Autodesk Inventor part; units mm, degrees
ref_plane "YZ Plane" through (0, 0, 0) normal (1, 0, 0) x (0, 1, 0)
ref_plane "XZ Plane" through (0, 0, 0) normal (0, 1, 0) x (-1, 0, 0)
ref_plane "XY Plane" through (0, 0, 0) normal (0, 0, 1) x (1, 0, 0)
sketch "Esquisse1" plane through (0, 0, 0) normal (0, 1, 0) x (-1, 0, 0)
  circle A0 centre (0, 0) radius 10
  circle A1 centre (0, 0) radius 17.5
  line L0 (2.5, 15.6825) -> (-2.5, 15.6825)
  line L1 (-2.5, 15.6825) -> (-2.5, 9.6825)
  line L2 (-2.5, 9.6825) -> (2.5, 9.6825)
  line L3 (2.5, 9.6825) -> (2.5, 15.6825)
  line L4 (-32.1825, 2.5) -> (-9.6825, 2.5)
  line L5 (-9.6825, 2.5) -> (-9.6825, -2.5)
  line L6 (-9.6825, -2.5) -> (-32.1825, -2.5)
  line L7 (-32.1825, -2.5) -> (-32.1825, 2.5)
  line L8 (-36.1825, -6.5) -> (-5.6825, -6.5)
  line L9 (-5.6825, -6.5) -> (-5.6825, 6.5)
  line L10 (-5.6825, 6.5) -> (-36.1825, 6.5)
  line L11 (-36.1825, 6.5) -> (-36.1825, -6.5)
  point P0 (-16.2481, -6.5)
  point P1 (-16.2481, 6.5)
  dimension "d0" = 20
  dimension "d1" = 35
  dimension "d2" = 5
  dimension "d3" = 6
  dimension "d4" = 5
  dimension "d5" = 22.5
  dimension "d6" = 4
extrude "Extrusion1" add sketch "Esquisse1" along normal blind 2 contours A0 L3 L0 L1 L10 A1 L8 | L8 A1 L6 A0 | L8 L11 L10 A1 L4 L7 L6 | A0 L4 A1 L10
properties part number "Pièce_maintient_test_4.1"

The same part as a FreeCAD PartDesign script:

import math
import FreeCAD as App
import Part
import Sketcher

V = App.Vector
Q = App.Units.Quantity

doc = App.newDocument("Part")
body = doc.addObject("PartDesign::Body", "Body")

# Sketch on XZ plane
sketch1 = body.newObject("Sketcher::SketchObject", "Sketch")
sketch1.AttachmentSupport = (doc.getObject("XZ_Plane"), [""])
sketch1.MapMode = "FlatFace"
sketch1.addGeometry(Part.LineSegment(V(16, 6, 0), V(36, 6, 0)), False)
sketch1.addGeometry(Part.LineSegment(V(36, 6, 0), V(36, -6, 0)), False)
sketch1.addGeometry(Part.LineSegment(V(36, -6, 0), V(16, -6, 0)), False)
sketch1.addGeometry(Part.ArcOfCircle(Part.Circle(V(0, 0, 0), V(0, 0, 1), 18), math.radians(22), math.radians(338)), False)
sketch1.addGeometry(Part.ArcOfCircle(Part.Circle(V(0, 0, 0), V(0, 0, 1), 10), math.radians(104), math.radians(346)), False)
sketch1.addGeometry(Part.LineSegment(V(10, -2, 0), V(32, -2, 0)), False)
sketch1.addGeometry(Part.LineSegment(V(32, -2, 0), V(32, 2, 0)), False)
sketch1.addGeometry(Part.LineSegment(V(32, 2, 0), V(10, 2, 0)), False)
sketch1.addGeometry(Part.ArcOfCircle(Part.Circle(V(0, 0, 0), V(0, 0, 1), 10), math.radians(14), math.radians(76)), False)
sketch1.addGeometry(Part.LineSegment(V(2, 10, 0), V(2, 16, 0)), False)
sketch1.addGeometry(Part.LineSegment(V(2, 16, 0), V(-2, 16, 0)), False)
sketch1.addGeometry(Part.LineSegment(V(-2, 16, 0), V(-2, 10, 0)), False)
sketch1.addConstraint(Sketcher.Constraint("Coincident", 0, 2, 1, 1))
sketch1.addConstraint(Sketcher.Constraint("Coincident", 1, 2, 2, 1))
sketch1.addConstraint(Sketcher.Constraint("Coincident", 2, 2, 3, 2))
sketch1.addConstraint(Sketcher.Constraint("Coincident", 3, 1, 0, 1))
sketch1.addConstraint(Sketcher.Constraint("Coincident", 4, 2, 5, 1))
sketch1.addConstraint(Sketcher.Constraint("Coincident", 5, 2, 6, 1))
sketch1.addConstraint(Sketcher.Constraint("Coincident", 6, 2, 7, 1))
sketch1.addConstraint(Sketcher.Constraint("Coincident", 7, 2, 8, 1))
sketch1.addConstraint(Sketcher.Constraint("Coincident", 8, 2, 9, 1))
sketch1.addConstraint(Sketcher.Constraint("Coincident", 9, 2, 10, 1))
sketch1.addConstraint(Sketcher.Constraint("Coincident", 10, 2, 11, 1))
sketch1.addConstraint(Sketcher.Constraint("Coincident", 11, 2, 4, 1))
sketch1.addConstraint(Sketcher.Constraint("Horizontal", 0))
sketch1.addConstraint(Sketcher.Constraint("Vertical", 1))
sketch1.addConstraint(Sketcher.Constraint("Horizontal", 2))
sketch1.addConstraint(Sketcher.Constraint("Horizontal", 5))
sketch1.addConstraint(Sketcher.Constraint("Vertical", 6))
sketch1.addConstraint(Sketcher.Constraint("Horizontal", 7))
sketch1.addConstraint(Sketcher.Constraint("Vertical", 9))
sketch1.addConstraint(Sketcher.Constraint("Horizontal", 10))
sketch1.addConstraint(Sketcher.Constraint("Vertical", 11))
sketch1.addConstraint(Sketcher.Constraint("Coincident", 3, 3, -1, 1))
sketch1.addConstraint(Sketcher.Constraint("Coincident", 4, 3, -1, 1))
sketch1.addConstraint(Sketcher.Constraint("Coincident", 8, 3, -1, 1))
sketch1.addConstraint(Sketcher.Constraint("Equal", 4, 8))
sketch1.addConstraint(Sketcher.Constraint("Horizontal", 8, 2, 11, 2))
sketch1.addConstraint(Sketcher.Constraint("Vertical", 2, 2, 3, 1))
sketch1.addConstraint(Sketcher.Constraint("Vertical", 4, 2, 7, 2))
sketch1.addConstraint(Sketcher.Constraint("Equal", 10, 6))
sketch1.addConstraint(Sketcher.Constraint("Radius", 4, Q("10 mm")))
sketch1.addConstraint(Sketcher.Constraint("Radius", 3, Q("17.5 mm")))
sketch1.addConstraint(Sketcher.Constraint("DistanceX", 10, 2, 10, 1, Q("5 mm")))
sketch1.addConstraint(Sketcher.Constraint("DistanceY", 9, 1, 9, 2, Q("6 mm")))
sketch1.addConstraint(Sketcher.Constraint("DistanceX", 5, 1, 5, 2, Q("22.5 mm")))
sketch1.addConstraint(Sketcher.Constraint("DistanceY", 2, 2, 4, 2, Q("4 mm")))
sketch1.addConstraint(Sketcher.Constraint("DistanceX", 5, 2, 1, 2, Q("4 mm")))
pad1 = body.newObject("PartDesign::Pad", "Pad")
pad1.Profile = sketch1
pad1.Length = 2
pad1.Reversed = True

doc.recompute()
